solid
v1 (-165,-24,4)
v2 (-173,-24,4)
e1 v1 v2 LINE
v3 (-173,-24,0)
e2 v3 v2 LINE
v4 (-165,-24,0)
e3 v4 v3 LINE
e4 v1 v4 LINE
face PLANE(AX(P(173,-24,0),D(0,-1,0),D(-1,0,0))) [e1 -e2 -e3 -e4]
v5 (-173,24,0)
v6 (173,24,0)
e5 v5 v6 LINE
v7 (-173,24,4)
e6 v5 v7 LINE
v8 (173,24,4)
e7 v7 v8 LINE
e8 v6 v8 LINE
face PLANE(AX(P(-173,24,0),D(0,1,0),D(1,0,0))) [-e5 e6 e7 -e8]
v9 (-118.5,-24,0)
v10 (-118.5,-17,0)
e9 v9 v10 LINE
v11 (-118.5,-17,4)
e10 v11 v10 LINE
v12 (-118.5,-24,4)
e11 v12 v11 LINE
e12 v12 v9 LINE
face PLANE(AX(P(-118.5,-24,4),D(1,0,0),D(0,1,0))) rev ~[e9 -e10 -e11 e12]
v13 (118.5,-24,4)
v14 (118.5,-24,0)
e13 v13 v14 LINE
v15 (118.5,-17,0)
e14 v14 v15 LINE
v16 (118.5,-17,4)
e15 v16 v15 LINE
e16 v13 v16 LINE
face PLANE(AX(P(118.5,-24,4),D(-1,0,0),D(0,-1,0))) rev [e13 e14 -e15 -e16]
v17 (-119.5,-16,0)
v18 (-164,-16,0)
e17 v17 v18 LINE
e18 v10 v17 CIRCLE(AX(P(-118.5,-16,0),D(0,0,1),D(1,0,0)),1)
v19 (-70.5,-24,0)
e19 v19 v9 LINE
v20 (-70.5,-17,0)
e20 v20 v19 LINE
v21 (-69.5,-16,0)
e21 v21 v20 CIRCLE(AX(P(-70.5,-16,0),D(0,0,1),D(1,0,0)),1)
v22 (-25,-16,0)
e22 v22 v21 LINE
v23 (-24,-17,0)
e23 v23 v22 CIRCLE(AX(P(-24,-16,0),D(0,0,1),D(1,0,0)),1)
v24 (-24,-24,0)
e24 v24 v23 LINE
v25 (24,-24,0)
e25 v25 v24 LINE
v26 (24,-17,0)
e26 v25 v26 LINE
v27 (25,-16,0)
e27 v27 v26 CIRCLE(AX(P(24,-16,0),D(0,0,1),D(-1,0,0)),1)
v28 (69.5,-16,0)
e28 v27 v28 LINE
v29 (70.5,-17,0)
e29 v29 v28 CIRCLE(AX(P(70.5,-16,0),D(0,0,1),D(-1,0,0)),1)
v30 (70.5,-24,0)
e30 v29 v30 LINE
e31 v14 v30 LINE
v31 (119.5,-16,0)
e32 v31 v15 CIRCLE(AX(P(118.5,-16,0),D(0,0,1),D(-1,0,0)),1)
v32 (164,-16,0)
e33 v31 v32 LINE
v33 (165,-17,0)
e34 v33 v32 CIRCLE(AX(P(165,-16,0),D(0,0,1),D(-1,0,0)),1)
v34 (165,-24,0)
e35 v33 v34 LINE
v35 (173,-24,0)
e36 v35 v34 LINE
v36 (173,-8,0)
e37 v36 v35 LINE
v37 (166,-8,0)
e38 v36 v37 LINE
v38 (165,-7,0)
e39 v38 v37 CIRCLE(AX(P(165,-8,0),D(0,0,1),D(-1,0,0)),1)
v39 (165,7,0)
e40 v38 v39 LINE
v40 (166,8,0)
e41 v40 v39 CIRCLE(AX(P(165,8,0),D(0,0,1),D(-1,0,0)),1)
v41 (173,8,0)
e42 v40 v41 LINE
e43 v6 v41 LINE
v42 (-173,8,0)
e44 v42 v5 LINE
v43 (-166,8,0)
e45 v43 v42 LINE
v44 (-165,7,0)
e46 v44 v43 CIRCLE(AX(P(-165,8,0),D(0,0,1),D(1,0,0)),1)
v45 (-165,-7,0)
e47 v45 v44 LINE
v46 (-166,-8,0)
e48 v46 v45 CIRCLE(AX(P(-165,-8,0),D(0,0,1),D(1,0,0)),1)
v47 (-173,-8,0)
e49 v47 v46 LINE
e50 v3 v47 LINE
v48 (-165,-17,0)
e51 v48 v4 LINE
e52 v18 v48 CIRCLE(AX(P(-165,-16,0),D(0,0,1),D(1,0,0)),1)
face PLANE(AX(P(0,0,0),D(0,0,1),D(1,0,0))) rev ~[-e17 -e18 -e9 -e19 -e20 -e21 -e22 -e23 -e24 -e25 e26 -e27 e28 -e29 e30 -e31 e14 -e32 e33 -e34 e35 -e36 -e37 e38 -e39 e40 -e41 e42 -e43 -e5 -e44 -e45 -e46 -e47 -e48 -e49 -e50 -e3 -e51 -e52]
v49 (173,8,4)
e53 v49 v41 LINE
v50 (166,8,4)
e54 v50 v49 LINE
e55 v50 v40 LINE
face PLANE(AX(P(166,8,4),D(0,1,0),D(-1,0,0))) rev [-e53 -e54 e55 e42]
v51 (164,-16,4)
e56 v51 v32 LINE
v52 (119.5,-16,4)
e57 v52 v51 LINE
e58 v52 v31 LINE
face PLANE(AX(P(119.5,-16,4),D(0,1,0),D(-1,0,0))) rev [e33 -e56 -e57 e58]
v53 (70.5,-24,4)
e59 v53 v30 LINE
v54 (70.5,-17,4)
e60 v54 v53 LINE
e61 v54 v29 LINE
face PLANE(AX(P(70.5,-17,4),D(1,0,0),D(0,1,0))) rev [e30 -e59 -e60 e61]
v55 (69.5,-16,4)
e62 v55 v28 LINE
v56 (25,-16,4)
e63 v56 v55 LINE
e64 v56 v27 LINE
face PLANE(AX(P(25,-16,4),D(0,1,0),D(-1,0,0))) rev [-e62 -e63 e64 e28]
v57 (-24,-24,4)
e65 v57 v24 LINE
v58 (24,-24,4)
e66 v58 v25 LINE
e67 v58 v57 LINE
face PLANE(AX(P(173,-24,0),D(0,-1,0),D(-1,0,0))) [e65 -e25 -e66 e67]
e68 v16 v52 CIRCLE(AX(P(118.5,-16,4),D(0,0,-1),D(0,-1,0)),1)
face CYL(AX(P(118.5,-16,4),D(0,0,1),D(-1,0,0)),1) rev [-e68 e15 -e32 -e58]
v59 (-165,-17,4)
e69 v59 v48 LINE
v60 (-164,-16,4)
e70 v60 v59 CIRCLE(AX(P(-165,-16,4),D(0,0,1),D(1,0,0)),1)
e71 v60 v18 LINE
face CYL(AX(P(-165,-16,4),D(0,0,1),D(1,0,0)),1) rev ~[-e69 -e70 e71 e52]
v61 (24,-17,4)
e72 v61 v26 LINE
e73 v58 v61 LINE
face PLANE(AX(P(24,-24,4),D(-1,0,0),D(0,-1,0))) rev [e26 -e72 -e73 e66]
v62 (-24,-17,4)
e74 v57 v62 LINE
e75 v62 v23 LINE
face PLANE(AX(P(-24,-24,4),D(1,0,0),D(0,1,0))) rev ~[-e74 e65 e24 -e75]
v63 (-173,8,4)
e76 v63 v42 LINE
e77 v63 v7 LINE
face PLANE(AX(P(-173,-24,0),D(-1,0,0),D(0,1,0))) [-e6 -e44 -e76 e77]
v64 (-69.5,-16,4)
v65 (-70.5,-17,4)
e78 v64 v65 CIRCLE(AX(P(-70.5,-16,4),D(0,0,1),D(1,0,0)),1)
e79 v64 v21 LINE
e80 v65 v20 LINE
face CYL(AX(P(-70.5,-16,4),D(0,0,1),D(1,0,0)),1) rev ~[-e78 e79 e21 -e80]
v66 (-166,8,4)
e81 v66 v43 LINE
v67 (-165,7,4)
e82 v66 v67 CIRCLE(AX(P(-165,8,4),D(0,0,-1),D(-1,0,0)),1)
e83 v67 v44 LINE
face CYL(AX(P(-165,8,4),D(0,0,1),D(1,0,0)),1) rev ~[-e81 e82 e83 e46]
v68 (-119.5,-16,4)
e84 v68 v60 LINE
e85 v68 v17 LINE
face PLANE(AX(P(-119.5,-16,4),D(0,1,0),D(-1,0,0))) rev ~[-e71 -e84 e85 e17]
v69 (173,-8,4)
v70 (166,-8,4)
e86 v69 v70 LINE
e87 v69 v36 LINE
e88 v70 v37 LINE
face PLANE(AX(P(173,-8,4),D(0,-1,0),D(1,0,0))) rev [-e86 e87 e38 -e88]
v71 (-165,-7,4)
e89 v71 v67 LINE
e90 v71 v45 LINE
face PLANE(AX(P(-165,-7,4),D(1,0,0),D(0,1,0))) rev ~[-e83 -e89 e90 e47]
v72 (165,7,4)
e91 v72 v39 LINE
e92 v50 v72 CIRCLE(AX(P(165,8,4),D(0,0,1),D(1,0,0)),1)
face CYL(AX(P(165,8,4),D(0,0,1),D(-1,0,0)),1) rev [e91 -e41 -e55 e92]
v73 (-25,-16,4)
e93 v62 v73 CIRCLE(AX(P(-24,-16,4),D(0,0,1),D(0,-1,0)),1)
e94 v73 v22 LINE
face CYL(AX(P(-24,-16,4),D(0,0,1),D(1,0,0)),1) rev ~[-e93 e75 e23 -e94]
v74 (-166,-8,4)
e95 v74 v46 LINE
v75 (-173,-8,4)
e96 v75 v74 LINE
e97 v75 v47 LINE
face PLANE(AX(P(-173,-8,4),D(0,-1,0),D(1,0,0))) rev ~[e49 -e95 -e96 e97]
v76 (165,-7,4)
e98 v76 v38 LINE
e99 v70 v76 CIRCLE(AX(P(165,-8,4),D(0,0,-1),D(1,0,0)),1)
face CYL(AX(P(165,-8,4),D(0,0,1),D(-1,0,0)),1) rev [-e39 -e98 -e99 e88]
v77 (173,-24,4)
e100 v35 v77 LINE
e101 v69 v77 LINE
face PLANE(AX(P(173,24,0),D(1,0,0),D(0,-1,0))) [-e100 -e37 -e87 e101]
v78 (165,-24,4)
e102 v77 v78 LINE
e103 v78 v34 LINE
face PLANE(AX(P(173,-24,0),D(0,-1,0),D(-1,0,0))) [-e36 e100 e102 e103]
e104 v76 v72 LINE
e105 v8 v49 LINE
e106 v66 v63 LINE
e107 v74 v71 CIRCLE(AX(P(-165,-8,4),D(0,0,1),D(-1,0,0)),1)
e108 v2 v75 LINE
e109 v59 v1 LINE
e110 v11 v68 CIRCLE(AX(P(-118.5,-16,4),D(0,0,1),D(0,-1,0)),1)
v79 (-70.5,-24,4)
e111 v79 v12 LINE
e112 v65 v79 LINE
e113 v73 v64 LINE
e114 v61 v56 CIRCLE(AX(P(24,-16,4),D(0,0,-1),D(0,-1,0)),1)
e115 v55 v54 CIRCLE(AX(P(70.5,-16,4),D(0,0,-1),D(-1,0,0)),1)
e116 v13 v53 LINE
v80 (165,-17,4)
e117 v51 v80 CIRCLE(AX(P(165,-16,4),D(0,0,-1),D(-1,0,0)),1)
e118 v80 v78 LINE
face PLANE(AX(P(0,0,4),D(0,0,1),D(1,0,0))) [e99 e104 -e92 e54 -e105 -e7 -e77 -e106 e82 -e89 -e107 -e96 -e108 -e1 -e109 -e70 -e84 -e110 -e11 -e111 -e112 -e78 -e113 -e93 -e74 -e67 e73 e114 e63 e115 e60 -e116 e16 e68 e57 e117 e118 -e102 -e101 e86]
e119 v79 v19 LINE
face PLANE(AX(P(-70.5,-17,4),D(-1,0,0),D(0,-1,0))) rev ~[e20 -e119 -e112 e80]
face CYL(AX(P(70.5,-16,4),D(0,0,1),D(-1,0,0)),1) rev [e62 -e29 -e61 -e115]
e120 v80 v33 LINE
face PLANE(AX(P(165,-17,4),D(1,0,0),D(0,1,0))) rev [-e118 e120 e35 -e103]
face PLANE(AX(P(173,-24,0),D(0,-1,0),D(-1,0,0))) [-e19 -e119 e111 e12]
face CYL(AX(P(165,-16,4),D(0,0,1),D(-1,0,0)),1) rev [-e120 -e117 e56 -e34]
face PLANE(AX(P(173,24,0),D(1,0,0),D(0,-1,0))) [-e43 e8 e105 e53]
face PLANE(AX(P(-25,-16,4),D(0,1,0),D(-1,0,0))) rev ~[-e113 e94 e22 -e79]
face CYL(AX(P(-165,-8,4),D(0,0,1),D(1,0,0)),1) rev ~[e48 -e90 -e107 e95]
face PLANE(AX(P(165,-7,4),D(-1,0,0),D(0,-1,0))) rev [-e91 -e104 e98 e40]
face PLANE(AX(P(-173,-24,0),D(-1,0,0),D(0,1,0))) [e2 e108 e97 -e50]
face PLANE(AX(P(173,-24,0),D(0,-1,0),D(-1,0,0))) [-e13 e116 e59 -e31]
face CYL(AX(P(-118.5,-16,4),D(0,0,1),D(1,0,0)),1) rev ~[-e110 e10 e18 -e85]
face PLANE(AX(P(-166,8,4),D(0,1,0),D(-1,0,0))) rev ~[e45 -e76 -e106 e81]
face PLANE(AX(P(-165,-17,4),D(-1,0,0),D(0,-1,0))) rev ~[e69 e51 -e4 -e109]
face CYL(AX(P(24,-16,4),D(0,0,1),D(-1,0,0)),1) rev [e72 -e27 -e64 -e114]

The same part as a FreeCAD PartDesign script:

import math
import FreeCAD as App
import Part
import Sketcher
Q = App.Units.Quantity


def add_polygon(sketch, points):
    """Adds a closed chain of lines whose ends are joined by coincident constraints."""
    first, n = sketch.GeometryCount, len(points)
    for a, b in zip(points, points[1:] + points[:1]):
        sketch.addGeometry(Part.LineSegment(App.Vector(*a, 0), App.Vector(*b, 0)), False)
    for i in range(n):
        sketch.addConstraint(Sketcher.Constraint("Coincident", first + i, 2, first + (i + 1) % n, 1))

doc = App.newDocument("Part")
body = doc.addObject("PartDesign::Body", "Body")

# Sketch on XY plane
sketch1 = doc.addObject("Sketcher::SketchObject", "Sketch")
body.addObject(sketch1)
sketch1.AttachmentSupport = (doc.XY_Plane, [""])
sketch1.MapMode = "FlatFace"
add_polygon(sketch1, [(173, 24), (-173, 24), (-173, -24), (173, -24)])  # lines 0-3
sketch1.addConstraint([
    Sketcher.Constraint("Horizontal", 0),
    Sketcher.Constraint("Vertical", 1),
    Sketcher.Constraint("Horizontal", 2),
    Sketcher.Constraint("Vertical", 3),
    Sketcher.Constraint("Symmetric", 0, 2, 2, 2, -1, 1),
    Sketcher.Constraint("DistanceX", 0, 2, 0, 1, Q("346 mm")),
    Sketcher.Constraint("DistanceY", 1, 2, 1, 1, Q("48 mm")),
])
pad1 = doc.addObject("PartDesign::Pad", "Pad")
body.addObject(pad1)
pad1.Profile = sketch1
pad1.Length = 4

# Sketch on XY plane
sketch2 = doc.addObject("Sketcher::SketchObject", "Sketch001")
body.addObject(sketch2)
sketch2.AttachmentSupport = (doc.XY_Plane, [""])
sketch2.MapMode = "FlatFace"
sketch2.AttachmentOffset = App.Placement(App.Vector(0, 0, 4), App.Rotation())
sketch2.addGeometry([
    Part.LineSegment(App.Vector(-165, -17, 0), App.Vector(-165, -24, 0)),  # 0
    Part.LineSegment(App.Vector(-165, -24, 0), App.Vector(-118.5, -24, 0)),  # 1
    Part.LineSegment(App.Vector(-118.5, -24, 0), App.Vector(-118.5, -17, 0)),  # 2
    Part.ArcOfCircle(Part.Circle(App.Vector(-118.5, -16, 0), App.Vector(0, 0, 1), 1), math.radians(-90), math.radians(180)),  # 3
    Part.LineSegment(App.Vector(-119.5, -16, 0), App.Vector(-164, -16, 0)),  # 4
    Part.ArcOfCircle(Part.Circle(App.Vector(-165, -16, 0), App.Vector(0, 0, 1), 1), math.radians(0), math.radians(270)),  # 5
    Part.LineSegment(App.Vector(-70.5, -17, 0), App.Vector(-70.5, -24, 0)),  # 6
    Part.LineSegment(App.Vector(-70.5, -24, 0), App.Vector(-24, -24, 0)),  # 7
    Part.LineSegment(App.Vector(-24, -24, 0), App.Vector(-24, -17, 0)),  # 8
    Part.ArcOfCircle(Part.Circle(App.Vector(-24, -16, 0), App.Vector(0, 0, 1), 1), math.radians(-90), math.radians(180)),  # 9
    Part.LineSegment(App.Vector(-25, -16, 0), App.Vector(-69.5, -16, 0)),  # 10
    Part.ArcOfCircle(Part.Circle(App.Vector(-70.5, -16, 0), App.Vector(0, 0, 1), 1), math.radians(0), math.radians(270)),  # 11
], False)
sketch2.addConstraint([
    Sketcher.Constraint("Coincident", 0, 2, 1, 1),
    Sketcher.Constraint("Coincident", 1, 2, 2, 1),
    Sketcher.Constraint("Coincident", 2, 2, 3, 1),
    Sketcher.Constraint("Coincident", 3, 2, 4, 1),
    Sketcher.Constraint("Coincident", 4, 2, 5, 1),
    Sketcher.Constraint("Coincident", 5, 2, 0, 1),
    Sketcher.Constraint("Coincident", 6, 2, 7, 1),
    Sketcher.Constraint("Coincident", 7, 2, 8, 1),
    Sketcher.Constraint("Coincident", 8, 2, 9, 1),
    Sketcher.Constraint("Coincident", 9, 2, 10, 1),
    Sketcher.Constraint("Coincident", 10, 2, 11, 1),
    Sketcher.Constraint("Coincident", 11, 2, 6, 1),
    Sketcher.Constraint("Vertical", 0),
    Sketcher.Constraint("Horizontal", 1),
    Sketcher.Constraint("Vertical", 2),
    Sketcher.Constraint("Horizontal", 4),
    Sketcher.Constraint("Vertical", 6),
    Sketcher.Constraint("Horizontal", 7),
    Sketcher.Constraint("Vertical", 8),
    Sketcher.Constraint("Horizontal", 10),
    Sketcher.Constraint("Equal", 3, 5),
    Sketcher.Constraint("Equal", 5, 9),
    Sketcher.Constraint("Equal", 9, 11),
    Sketcher.Constraint("Horizontal", 3, 3, 5, 3),
    Sketcher.Constraint("Horizontal", 5, 3, 9, 3),
    Sketcher.Constraint("Horizontal", 9, 3, 11, 3),
    Sketcher.Constraint("Horizontal", 11, 3, 3, 2),
    Sketcher.Constraint("Horizontal", 1, 2, 6, 2),
    Sketcher.Constraint("Horizontal", 4, 2, 9, 2),
    Sketcher.Constraint("Vertical", 5, 3, 0, 2),
    Sketcher.Constraint("Vertical", 3, 3, 1, 2),
    Sketcher.Constraint("Vertical", 11, 3, 6, 2),
    Sketcher.Constraint("Vertical", 9, 3, 7, 2),
    Sketcher.Constraint("Equal", 1, 7),
    Sketcher.Constraint("Radius", 3, Q("1 mm")),
    Sketcher.Constraint("DistanceX", 1, 1, 1, 2, Q("46.5 mm")),
    Sketcher.Constraint("DistanceX", 3, 3, 11, 3, Q("48 mm")),
    Sketcher.Constraint("DistanceY", 0, 2, 5, 3, Q("8 mm")),
    Sketcher.Constraint("DistanceY", 3, 3, -1, 1, Q("16 mm")),
    Sketcher.Constraint("DistanceX", 5, 3, -1, 1, Q("165 mm")),
])
pocket1 = doc.addObject("PartDesign::Pocket", "Pocket")
body.addObject(pocket1)
pocket1.Profile = sketch2
pocket1.Length = 10
doc.recompute()

mirrored = doc.addObject("PartDesign::Mirrored", "Mirrored")
body.addObject(mirrored)
mirrored.Originals = [pocket1]
mirrored.MirrorPlane = (doc.YZ_Plane, [""])
body.Tip = mirrored

# Sketch on XY plane
sketch3 = doc.addObject("Sketcher::SketchObject", "Sketch002")
body.addObject(sketch3)
sketch3.AttachmentSupport = (doc.XY_Plane, [""])
sketch3.MapMode = "FlatFace"
sketch3.AttachmentOffset = App.Placement(App.Vector(0, 0, 4), App.Rotation())
sketch3.addGeometry([
    Part.LineSegment(App.Vector(-166, 8, 0), App.Vector(-173, 8, 0)),  # 0
    Part.LineSegment(App.Vector(-173, 8, 0), App.Vector(-173, -8, 0)),  # 1
    Part.LineSegment(App.Vector(-173, -8, 0), App.Vector(-166, -8, 0)),  # 2
    Part.ArcOfCircle(Part.Circle(App.Vector(-165, -8, 0), App.Vector(0, 0, 1), 1), math.radians(180), math.radians(450)),  # 3
    Part.LineSegment(App.Vector(-165, -7, 0), App.Vector(-165, 7, 0)),  # 4
    Part.ArcOfCircle(Part.Circle(App.Vector(-165, 8, 0), App.Vector(0, 0, 1), 1), math.radians(-90), math.radians(180)),  # 5
], False)
sketch3.addConstraint([
    Sketcher.Constraint("Coincident", 0, 2, 1, 1),
    Sketcher.Constraint("Coincident", 1, 2, 2, 1),
    Sketcher.Constraint("Coincident", 2, 2, 3, 1),
    Sketcher.Constraint("Coincident", 3, 2, 4, 1),
    Sketcher.Constraint("Coincident", 4, 2, 5, 1),
    Sketcher.Constraint("Coincident", 5, 2, 0, 1),
    Sketcher.Constraint("Horizontal", 0),
    Sketcher.Constraint("Vertical", 1),
    Sketcher.Constraint("Horizontal", 2),
    Sketcher.Constraint("Vertical", 4),
    Sketcher.Constraint("Equal", 3, 5),
    Sketcher.Constraint("Symmetric", 3, 3, 5, 3, -1),
    Sketcher.Constraint("Horizontal", 5, 3, 0, 2),
    Sketcher.Constraint("Horizontal", 3, 3, 1, 2),
    Sketcher.Constraint("Vertical", 5, 3, 3, 2),
    Sketcher.Constraint("Radius", 3, Q("1 mm")),
    Sketcher.Constraint("DistanceY", 1, 2, 1, 1, Q("16 mm")),
    Sketcher.Constraint("DistanceX", 0, 2, 5, 3, Q("8 mm")),
    Sketcher.Constraint("DistanceX", 3, 3, -1, 1, Q("165 mm")),
])
pocket2 = doc.addObject("PartDesign::Pocket", "Pocket001")
body.addObject(pocket2)
pocket2.Profile = sketch3
pocket2.Length = 10
doc.recompute()

mirrored2 = doc.addObject("PartDesign::Mirrored", "Mirrored001")
body.addObject(mirrored2)
mirrored2.Originals = [pocket2]
mirrored2.MirrorPlane = (doc.YZ_Plane, [""])
body.Tip = mirrored2

doc.recompute()
